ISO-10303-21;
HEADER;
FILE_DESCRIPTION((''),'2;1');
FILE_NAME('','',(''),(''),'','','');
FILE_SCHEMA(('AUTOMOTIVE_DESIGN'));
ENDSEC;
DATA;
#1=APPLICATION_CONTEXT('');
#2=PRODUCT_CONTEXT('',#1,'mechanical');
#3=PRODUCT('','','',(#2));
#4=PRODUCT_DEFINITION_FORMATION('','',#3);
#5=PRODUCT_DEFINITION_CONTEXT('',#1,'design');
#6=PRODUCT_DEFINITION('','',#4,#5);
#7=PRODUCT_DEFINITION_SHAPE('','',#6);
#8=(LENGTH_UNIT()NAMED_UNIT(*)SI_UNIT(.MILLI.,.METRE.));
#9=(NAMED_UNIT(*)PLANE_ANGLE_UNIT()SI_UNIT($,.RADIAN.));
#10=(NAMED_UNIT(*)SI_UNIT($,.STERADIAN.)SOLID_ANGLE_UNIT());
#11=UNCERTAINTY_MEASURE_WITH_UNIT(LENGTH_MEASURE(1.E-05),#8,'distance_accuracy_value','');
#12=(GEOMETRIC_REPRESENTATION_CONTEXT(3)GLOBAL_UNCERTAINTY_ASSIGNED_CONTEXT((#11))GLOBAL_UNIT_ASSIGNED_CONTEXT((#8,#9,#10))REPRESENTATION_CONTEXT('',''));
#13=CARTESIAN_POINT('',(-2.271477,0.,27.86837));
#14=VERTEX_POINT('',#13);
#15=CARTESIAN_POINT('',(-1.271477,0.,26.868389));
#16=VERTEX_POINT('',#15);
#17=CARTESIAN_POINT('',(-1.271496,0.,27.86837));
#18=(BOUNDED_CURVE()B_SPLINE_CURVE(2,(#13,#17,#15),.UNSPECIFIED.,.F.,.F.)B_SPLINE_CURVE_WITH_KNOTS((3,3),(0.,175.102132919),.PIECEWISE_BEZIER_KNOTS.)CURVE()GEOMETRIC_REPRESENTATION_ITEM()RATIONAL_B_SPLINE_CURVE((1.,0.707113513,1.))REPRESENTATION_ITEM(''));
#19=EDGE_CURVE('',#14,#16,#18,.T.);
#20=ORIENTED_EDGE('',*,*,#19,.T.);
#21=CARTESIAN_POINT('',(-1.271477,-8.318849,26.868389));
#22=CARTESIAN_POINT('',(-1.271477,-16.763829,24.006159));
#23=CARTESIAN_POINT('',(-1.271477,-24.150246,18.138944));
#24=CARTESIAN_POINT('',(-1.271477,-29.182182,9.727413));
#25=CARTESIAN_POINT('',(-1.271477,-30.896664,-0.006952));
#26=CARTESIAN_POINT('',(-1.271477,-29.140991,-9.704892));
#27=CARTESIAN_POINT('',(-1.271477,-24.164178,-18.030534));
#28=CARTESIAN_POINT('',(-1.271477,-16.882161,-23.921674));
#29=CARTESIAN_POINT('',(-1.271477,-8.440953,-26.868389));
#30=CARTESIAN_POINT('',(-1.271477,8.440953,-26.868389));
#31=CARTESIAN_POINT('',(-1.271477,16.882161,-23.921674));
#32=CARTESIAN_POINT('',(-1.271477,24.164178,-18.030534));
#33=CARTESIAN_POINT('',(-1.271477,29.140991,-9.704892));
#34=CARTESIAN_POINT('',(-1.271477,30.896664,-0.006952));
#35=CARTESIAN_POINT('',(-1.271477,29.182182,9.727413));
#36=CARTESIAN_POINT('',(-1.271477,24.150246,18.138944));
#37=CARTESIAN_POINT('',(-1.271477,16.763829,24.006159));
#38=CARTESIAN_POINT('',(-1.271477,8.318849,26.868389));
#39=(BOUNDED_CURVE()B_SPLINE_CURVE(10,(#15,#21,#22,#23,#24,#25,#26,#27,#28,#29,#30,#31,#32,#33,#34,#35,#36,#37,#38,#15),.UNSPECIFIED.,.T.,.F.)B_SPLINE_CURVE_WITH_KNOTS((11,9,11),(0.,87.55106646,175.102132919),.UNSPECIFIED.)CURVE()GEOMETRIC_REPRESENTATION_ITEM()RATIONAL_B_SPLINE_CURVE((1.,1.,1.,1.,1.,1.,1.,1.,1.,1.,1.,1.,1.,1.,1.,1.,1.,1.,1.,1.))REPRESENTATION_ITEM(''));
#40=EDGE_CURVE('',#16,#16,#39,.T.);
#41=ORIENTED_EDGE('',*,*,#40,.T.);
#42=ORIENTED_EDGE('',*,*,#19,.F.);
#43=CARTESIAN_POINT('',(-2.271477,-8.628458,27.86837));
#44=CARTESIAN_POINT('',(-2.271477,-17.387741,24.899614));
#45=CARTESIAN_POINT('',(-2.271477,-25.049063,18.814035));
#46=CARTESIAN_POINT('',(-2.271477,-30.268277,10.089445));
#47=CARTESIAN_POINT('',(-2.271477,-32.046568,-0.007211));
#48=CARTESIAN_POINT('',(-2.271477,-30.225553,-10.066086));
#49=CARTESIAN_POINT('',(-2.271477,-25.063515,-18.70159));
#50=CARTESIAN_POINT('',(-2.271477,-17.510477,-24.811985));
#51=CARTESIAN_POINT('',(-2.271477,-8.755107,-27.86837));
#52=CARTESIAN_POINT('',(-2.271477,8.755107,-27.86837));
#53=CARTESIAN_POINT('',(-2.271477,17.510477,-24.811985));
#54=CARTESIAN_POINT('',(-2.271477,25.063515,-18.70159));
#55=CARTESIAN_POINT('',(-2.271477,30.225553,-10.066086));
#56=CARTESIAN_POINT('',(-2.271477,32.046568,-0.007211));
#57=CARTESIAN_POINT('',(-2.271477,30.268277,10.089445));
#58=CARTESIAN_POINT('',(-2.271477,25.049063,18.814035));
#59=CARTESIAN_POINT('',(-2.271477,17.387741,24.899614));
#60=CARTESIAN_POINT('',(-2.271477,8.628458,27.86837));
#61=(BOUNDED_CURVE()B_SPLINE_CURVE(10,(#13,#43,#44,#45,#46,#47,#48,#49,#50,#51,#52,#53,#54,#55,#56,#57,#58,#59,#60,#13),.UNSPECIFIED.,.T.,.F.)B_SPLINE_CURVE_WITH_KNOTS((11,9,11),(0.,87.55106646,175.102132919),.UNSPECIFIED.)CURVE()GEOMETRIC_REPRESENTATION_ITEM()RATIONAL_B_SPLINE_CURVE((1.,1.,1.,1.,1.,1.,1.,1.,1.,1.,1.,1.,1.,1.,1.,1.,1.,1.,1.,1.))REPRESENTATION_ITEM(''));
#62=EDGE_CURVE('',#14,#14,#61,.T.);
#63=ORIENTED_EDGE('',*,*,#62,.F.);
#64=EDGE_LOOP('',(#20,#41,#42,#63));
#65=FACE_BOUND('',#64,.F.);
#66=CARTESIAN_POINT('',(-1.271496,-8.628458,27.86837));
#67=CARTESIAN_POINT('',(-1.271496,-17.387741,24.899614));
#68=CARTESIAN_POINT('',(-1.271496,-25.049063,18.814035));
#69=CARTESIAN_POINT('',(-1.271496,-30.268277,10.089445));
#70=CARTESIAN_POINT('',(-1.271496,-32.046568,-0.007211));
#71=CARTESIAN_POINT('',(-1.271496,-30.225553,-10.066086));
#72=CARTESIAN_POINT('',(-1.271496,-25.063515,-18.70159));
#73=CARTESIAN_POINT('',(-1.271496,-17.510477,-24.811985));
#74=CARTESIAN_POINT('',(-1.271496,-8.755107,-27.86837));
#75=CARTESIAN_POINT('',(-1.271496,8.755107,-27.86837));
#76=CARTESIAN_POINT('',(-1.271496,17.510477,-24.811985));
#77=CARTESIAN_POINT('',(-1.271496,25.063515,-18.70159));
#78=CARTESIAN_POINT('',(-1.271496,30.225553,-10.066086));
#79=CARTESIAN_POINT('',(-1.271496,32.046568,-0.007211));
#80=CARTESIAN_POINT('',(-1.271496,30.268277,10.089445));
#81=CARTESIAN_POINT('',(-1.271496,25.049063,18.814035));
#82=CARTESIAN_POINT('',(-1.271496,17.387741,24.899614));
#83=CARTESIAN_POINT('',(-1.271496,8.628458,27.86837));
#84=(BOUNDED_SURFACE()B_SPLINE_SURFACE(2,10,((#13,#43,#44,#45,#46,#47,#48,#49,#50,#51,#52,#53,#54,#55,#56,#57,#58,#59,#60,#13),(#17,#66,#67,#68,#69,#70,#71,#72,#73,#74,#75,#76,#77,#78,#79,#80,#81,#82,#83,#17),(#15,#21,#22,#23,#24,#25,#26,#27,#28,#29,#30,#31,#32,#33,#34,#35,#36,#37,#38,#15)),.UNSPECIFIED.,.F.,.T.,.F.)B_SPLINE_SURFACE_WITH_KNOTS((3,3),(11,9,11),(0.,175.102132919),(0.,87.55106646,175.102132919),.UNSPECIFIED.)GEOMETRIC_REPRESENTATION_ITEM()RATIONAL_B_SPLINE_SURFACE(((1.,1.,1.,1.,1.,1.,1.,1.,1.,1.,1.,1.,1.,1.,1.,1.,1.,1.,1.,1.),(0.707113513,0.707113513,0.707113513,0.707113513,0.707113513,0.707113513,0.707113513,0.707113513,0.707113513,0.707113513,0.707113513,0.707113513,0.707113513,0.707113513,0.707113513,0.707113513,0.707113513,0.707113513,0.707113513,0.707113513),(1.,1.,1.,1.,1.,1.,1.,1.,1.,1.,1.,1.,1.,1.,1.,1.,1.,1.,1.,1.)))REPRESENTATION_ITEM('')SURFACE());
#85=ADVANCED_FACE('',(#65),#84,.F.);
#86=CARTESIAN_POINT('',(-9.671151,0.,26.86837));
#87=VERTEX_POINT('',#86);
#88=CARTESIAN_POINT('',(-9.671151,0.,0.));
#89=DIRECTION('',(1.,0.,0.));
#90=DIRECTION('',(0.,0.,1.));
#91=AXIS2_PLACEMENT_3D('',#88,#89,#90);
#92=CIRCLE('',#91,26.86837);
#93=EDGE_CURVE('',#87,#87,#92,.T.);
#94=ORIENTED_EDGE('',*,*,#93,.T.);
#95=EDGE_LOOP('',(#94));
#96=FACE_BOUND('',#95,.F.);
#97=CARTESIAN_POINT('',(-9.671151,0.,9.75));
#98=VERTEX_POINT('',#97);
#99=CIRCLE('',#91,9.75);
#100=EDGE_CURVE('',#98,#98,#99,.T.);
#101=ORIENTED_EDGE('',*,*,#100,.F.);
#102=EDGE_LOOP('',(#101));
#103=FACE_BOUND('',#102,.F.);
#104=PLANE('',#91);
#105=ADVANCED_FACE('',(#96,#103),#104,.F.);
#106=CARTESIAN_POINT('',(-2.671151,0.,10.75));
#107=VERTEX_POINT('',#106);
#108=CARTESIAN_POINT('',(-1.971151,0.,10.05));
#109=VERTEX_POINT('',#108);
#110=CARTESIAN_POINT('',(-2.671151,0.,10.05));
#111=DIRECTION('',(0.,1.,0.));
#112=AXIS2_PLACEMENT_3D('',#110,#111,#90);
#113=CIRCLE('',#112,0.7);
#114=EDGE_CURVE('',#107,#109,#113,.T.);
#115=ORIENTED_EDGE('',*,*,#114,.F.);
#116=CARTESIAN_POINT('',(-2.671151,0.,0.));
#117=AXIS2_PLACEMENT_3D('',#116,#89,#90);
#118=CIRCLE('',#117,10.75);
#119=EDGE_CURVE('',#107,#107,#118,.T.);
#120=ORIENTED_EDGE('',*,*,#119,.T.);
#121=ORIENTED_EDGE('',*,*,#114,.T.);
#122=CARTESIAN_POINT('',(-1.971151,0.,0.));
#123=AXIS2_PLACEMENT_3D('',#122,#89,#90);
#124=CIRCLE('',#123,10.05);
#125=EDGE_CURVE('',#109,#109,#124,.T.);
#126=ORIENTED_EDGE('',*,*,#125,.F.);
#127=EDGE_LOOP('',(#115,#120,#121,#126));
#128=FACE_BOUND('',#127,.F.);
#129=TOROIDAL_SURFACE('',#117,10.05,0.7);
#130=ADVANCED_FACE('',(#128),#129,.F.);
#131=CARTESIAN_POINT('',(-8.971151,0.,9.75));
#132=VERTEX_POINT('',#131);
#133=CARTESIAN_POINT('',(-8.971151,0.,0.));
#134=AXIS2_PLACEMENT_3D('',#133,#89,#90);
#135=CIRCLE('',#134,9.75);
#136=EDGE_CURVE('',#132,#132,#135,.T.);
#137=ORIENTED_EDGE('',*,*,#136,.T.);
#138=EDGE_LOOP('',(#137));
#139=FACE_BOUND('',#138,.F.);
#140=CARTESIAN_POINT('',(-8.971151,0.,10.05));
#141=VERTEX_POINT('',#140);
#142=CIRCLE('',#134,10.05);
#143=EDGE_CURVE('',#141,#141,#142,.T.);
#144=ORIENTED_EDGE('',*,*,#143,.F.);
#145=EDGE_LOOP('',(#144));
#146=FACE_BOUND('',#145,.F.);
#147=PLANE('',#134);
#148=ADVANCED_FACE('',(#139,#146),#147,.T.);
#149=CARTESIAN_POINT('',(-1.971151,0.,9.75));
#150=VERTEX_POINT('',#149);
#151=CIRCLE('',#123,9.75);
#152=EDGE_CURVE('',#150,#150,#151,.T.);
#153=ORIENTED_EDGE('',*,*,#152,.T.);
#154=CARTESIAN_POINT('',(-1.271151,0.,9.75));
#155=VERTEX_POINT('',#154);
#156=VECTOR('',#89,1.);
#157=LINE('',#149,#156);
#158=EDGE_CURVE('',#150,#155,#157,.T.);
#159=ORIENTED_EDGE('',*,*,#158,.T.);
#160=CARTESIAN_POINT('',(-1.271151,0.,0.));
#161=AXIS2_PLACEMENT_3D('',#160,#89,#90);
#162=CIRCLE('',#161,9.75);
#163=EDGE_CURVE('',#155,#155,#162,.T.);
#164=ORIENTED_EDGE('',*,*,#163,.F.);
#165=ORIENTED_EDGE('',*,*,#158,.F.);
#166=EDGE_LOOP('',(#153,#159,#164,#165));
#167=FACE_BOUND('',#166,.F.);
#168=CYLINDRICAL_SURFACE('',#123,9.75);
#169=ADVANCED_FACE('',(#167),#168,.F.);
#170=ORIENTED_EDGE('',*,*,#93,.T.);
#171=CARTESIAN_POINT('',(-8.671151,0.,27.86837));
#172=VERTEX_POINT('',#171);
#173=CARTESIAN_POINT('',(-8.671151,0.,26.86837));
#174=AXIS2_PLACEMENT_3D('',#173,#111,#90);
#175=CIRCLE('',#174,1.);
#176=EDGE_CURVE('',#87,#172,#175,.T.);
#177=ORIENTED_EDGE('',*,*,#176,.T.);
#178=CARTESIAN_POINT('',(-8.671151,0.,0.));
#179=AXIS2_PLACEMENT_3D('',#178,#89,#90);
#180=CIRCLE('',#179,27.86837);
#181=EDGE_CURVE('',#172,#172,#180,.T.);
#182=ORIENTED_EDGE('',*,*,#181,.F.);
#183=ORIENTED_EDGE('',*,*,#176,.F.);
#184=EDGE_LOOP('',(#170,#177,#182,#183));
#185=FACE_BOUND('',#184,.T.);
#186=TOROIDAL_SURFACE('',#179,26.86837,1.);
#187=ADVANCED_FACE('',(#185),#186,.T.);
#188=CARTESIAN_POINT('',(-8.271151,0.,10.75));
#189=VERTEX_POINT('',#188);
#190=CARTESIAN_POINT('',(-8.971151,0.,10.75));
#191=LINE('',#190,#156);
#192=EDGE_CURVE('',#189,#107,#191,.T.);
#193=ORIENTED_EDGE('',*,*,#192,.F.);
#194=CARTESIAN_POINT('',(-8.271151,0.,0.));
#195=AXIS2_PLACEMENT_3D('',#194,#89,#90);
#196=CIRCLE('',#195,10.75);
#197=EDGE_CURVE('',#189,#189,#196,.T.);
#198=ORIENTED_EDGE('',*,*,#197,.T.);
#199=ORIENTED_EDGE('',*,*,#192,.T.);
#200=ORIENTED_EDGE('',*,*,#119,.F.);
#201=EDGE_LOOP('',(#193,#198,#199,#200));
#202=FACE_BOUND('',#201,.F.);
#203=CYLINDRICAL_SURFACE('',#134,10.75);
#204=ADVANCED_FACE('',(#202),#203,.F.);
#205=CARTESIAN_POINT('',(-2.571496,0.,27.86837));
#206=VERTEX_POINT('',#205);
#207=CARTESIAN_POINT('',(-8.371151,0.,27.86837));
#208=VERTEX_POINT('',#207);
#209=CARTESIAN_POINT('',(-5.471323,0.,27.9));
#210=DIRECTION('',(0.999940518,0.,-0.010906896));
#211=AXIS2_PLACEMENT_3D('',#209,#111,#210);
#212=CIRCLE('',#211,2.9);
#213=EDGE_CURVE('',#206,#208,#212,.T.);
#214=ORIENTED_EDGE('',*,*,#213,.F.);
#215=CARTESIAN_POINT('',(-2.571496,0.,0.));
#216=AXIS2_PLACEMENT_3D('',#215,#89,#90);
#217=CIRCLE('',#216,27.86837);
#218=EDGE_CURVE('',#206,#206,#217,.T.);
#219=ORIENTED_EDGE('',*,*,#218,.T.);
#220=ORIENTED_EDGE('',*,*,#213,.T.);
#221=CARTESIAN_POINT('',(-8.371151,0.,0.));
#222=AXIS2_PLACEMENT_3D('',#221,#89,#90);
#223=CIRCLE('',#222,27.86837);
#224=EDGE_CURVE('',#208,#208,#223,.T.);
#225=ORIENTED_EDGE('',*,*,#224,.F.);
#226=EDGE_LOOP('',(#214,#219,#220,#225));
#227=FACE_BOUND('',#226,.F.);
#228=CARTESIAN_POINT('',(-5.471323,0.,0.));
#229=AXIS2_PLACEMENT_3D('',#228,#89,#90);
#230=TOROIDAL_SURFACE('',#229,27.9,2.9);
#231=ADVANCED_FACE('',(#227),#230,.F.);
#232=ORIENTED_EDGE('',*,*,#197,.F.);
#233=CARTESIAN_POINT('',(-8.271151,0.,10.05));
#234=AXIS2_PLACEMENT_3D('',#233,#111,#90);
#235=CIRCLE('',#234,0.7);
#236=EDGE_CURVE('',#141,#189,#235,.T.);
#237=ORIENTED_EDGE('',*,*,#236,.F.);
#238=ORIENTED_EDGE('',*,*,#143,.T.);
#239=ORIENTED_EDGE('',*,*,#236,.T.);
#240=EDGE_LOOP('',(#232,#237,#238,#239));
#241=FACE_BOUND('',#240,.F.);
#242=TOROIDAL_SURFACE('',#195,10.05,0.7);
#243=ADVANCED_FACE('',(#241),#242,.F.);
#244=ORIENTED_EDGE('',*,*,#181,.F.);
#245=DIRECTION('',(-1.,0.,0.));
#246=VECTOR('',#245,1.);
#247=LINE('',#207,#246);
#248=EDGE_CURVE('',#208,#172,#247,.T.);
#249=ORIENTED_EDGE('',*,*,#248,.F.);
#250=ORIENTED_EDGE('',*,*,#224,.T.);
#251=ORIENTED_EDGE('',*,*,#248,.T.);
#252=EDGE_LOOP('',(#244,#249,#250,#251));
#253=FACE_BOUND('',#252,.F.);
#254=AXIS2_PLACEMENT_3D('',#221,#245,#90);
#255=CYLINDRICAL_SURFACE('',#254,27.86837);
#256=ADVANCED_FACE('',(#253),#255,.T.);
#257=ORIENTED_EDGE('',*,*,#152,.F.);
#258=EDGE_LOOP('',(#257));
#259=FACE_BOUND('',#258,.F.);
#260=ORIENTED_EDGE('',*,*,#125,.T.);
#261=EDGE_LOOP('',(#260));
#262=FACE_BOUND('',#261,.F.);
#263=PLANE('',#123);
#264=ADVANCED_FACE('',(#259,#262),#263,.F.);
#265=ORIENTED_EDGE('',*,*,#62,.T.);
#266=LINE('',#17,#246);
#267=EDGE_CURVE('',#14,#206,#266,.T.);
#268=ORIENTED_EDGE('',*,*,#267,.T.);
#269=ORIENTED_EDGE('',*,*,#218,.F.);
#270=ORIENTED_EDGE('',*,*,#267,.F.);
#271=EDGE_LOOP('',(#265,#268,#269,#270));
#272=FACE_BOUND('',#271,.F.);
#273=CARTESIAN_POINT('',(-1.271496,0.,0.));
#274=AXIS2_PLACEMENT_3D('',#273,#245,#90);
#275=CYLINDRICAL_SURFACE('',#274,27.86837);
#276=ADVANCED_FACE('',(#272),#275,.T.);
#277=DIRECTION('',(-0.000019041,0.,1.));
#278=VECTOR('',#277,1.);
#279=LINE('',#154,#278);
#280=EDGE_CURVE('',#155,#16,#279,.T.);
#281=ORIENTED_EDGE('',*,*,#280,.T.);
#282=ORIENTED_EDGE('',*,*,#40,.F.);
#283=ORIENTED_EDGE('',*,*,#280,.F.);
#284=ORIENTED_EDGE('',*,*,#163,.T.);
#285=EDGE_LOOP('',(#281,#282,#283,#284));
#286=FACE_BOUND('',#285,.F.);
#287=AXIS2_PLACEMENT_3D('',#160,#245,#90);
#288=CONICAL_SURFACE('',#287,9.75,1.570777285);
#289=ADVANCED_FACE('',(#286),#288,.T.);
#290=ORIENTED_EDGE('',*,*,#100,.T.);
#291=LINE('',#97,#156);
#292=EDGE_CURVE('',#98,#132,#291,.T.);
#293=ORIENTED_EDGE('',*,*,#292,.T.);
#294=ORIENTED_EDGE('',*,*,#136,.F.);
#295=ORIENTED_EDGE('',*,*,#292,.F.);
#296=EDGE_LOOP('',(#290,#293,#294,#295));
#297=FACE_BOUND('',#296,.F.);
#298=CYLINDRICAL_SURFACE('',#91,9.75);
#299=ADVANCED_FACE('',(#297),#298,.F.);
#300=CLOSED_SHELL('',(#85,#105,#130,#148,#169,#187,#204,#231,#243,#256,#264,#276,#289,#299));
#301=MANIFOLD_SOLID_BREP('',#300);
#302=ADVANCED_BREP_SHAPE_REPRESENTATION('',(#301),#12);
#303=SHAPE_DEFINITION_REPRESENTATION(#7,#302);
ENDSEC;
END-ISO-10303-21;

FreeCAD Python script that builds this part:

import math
import FreeCAD as App
import Part
import Sketcher

V = App.Vector
Q = App.Units.Quantity


def edges_at(feature, points):
    """Names of the edges that pass closest to the given points."""
    edges = feature.Shape.Edges
    near = lambda p: min(range(len(edges)), key=lambda i: edges[i].distToShape(Part.Vertex(*p))[0])
    return sorted({f"Edge{near(p) + 1}" for p in points})

doc = App.newDocument("Part")
body = doc.addObject("PartDesign::Body", "Body")

# Sketch on XZ plane
sketch1 = doc.addObject("Sketcher::SketchObject", "Sketch")
body.addObject(sketch1)
sketch1.AttachmentSupport = (doc.XZ_Plane, [""])
sketch1.MapMode = "FlatFace"
sketch1.addGeometry([
    Part.LineSegment(V(-8.4, 27.9, 0), V(-9.7, 27.9, 0)),  # 0
    Part.LineSegment(V(-9.7, 27.9, 0), V(-9.7, 9.8, 0)),  # 1
    Part.LineSegment(V(-9.7, 9.8, 0), V(-9, 9.8, 0)),  # 2
    Part.LineSegment(V(-9, 9.8, 0), V(-9, 10.8, 0)),  # 3
    Part.LineSegment(V(-9, 10.8, 0), V(-2, 10.8, 0)),  # 4
    Part.LineSegment(V(-2, 10.8, 0), V(-2, 9.8, 0)),  # 5
    Part.LineSegment(V(-2, 9.8, 0), V(-1.3, 9.8, 0)),  # 6
    Part.LineSegment(V(-1.3, 9.8, 0), V(-1.3, 27.9, 0)),  # 7
    Part.LineSegment(V(-1.3, 27.9, 0), V(-2.6, 27.9, 0)),  # 8
    Part.ArcOfCircle(Part.Circle(V(-5.5, 27.9, 0), V(0, 0, 1), 2.9), math.radians(-179), math.radians(-1)),  # 9
], False)
sketch1.addConstraint([
    Sketcher.Constraint("Coincident", 0, 2, 1, 1),
    Sketcher.Constraint("Coincident", 1, 2, 2, 1),
    Sketcher.Constraint("Coincident", 2, 2, 3, 1),
    Sketcher.Constraint("Coincident", 3, 2, 4, 1),
    Sketcher.Constraint("Coincident", 4, 2, 5, 1),
    Sketcher.Constraint("Coincident", 5, 2, 6, 1),
    Sketcher.Constraint("Coincident", 6, 2, 7, 1),
    Sketcher.Constraint("Coincident", 7, 2, 8, 1),
    Sketcher.Constraint("Coincident", 8, 2, 9, 2),
    Sketcher.Constraint("Coincident", 9, 1, 0, 1),
    Sketcher.Constraint("Horizontal", 0),
    Sketcher.Constraint("Vertical", 1),
    Sketcher.Constraint("Horizontal", 2),
    Sketcher.Constraint("Vertical", 3),
    Sketcher.Constraint("Horizontal", 4),
    Sketcher.Constraint("Vertical", 5),
    Sketcher.Constraint("Horizontal", 6),
    Sketcher.Constraint("Horizontal", 8),
    Sketcher.Constraint("Horizontal", 2, 2, 5, 2),
    Sketcher.Constraint("Horizontal", 0, 2, 7, 2),
    Sketcher.Constraint("Equal", 2, 6),
    Sketcher.Constraint("Equal", 0, 8),
    Sketcher.Constraint("Radius", 9, Q("2.9 mm")),
    Sketcher.Constraint("DistanceX", 4, 1, 4, 2, Q("7 mm")),
    Sketcher.Constraint("DistanceY", 3, 1, 3, 2, Q("1 mm")),
    Sketcher.Constraint("DistanceX", 0, 2, 0, 1, Q("1.3 mm")),
    Sketcher.Constraint("DistanceX", 2, 1, 2, 2, Q("0.7 mm")),
    Sketcher.Constraint("DistanceY", -1, 1, 9, 3, Q("27.9 mm")),
    Sketcher.Constraint("DistanceY", -1, 1, 1, 2, Q("9.75 mm")),
    Sketcher.Constraint("DistanceY", 1, 2, 1, 1, Q("18.11837 mm")),
    Sketcher.Constraint("DistanceX", 0, 2, -1, 1, Q("9.671151 mm")),
])
revolution = doc.addObject("PartDesign::Revolution", "Revolution")
body.addObject(revolution)
revolution.Profile = sketch1
revolution.ReferenceAxis = (sketch1, ["H_Axis"])
revolution.Angle = 360
doc.recompute()

fillet = doc.addObject("PartDesign::Fillet", "Fillet")
body.addObject(fillet)
fillet.Base = (revolution, edges_at(revolution, [(-8.971, 0, -10.75), (-1.971, 0, -10.75)]))
fillet.Radius = 0.7
doc.recompute()

fillet2 = doc.addObject("PartDesign::Fillet", "Fillet001")
body.addObject(fillet2)
fillet2.Base = (fillet, edges_at(fillet, [(-9.671, 0, -27.868), (-1.271, 0, -27.868)]))
fillet2.Radius = 1

doc.recompute()
